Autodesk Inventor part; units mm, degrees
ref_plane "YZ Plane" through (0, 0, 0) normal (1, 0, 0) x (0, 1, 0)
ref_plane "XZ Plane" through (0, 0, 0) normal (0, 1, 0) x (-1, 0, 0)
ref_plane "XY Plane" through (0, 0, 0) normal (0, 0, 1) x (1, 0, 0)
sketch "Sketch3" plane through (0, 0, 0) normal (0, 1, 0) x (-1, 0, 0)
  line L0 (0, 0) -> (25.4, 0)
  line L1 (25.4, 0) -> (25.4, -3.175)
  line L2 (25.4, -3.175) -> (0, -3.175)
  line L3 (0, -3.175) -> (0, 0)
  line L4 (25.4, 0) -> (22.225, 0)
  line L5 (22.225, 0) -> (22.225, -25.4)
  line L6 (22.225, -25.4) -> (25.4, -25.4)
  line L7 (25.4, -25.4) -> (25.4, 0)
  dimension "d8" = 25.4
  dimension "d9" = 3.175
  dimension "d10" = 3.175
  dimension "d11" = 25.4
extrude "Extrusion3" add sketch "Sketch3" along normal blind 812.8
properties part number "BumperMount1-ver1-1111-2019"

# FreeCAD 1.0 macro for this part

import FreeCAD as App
import Part
import Sketcher

V = App.Vector
Q = App.Units.Quantity

doc = App.newDocument("Part")
params = doc.addObject("Spreadsheet::Sheet", "Params")
for row, (alias, value) in enumerate([
    ("sketch1_width", "1 in"),
    ("sketch1_width2", "0.125 in"),
    ("pad1_length", "32 in"),
], start=1):
    params.set(f"A{row}", alias)
    params.set(f"B{row}", "=" + value)
    params.setAlias(f"B{row}", alias)

body = doc.addObject("PartDesign::Body", "Body")

# Sketch on XZ plane
sketch1 = doc.addObject("Sketcher::SketchObject", "Sketch")
body.addObject(sketch1)
sketch1.AttachmentSupport = (doc.XZ_Plane, [""])
sketch1.MapMode = "FlatFace"
sketch1.addGeometry([
    Part.LineSegment(V(0, 0, 0), V(0, -3.175, 0)),  # 0
    Part.LineSegment(V(0, -3.175, 0), V(-22.225, -3.175, 0)),  # 1
    Part.LineSegment(V(-22.225, -3.175, 0), V(-22.225, -25.4, 0)),  # 2
    Part.LineSegment(V(-22.225, -25.4, 0), V(-25.4, -25.4, 0)),  # 3
    Part.LineSegment(V(-25.4, -25.4, 0), V(-25.4, 0, 0)),  # 4
    Part.LineSegment(V(-25.4, 0, 0), V(0, 0, 0)),  # 5
], False)
sketch1.addConstraint([
    Sketcher.Constraint("Coincident", 0, 2, 1, 1),
    Sketcher.Constraint("Coincident", 1, 2, 2, 1),
    Sketcher.Constraint("Coincident", 2, 2, 3, 1),
    Sketcher.Constraint("Coincident", 3, 2, 4, 1),
    Sketcher.Constraint("Coincident", 4, 2, 5, 1),
    Sketcher.Constraint("Coincident", 5, 2, 0, 1),
    Sketcher.Constraint("Vertical", 0),
    Sketcher.Constraint("Horizontal", 1),
    Sketcher.Constraint("Vertical", 2),
    Sketcher.Constraint("Horizontal", 3),
    Sketcher.Constraint("Vertical", 4),
    Sketcher.Constraint("Horizontal", 5),
    Sketcher.Constraint("Coincident", 5, 2, -1, 1),
    Sketcher.Constraint("Equal", 3, 0),
    Sketcher.Constraint("Equal", 1, 2),
    Sketcher.Constraint("DistanceX", 5, 1, 5, 2, Q("1 in")),
    Sketcher.Constraint("DistanceX", 3, 2, 3, 1, Q("0.125 in")),
])
sketch1.setExpression("Constraints[15]", "Params.sketch1_width")
sketch1.setExpression("Constraints[16]", "Params.sketch1_width2")
pad1 = doc.addObject("PartDesign::Pad", "Pad")
body.addObject(pad1)
pad1.Profile = sketch1
pad1.setExpression("Length", "Params.pad1_length")
pad1.Reversed = True

doc.recompute()
